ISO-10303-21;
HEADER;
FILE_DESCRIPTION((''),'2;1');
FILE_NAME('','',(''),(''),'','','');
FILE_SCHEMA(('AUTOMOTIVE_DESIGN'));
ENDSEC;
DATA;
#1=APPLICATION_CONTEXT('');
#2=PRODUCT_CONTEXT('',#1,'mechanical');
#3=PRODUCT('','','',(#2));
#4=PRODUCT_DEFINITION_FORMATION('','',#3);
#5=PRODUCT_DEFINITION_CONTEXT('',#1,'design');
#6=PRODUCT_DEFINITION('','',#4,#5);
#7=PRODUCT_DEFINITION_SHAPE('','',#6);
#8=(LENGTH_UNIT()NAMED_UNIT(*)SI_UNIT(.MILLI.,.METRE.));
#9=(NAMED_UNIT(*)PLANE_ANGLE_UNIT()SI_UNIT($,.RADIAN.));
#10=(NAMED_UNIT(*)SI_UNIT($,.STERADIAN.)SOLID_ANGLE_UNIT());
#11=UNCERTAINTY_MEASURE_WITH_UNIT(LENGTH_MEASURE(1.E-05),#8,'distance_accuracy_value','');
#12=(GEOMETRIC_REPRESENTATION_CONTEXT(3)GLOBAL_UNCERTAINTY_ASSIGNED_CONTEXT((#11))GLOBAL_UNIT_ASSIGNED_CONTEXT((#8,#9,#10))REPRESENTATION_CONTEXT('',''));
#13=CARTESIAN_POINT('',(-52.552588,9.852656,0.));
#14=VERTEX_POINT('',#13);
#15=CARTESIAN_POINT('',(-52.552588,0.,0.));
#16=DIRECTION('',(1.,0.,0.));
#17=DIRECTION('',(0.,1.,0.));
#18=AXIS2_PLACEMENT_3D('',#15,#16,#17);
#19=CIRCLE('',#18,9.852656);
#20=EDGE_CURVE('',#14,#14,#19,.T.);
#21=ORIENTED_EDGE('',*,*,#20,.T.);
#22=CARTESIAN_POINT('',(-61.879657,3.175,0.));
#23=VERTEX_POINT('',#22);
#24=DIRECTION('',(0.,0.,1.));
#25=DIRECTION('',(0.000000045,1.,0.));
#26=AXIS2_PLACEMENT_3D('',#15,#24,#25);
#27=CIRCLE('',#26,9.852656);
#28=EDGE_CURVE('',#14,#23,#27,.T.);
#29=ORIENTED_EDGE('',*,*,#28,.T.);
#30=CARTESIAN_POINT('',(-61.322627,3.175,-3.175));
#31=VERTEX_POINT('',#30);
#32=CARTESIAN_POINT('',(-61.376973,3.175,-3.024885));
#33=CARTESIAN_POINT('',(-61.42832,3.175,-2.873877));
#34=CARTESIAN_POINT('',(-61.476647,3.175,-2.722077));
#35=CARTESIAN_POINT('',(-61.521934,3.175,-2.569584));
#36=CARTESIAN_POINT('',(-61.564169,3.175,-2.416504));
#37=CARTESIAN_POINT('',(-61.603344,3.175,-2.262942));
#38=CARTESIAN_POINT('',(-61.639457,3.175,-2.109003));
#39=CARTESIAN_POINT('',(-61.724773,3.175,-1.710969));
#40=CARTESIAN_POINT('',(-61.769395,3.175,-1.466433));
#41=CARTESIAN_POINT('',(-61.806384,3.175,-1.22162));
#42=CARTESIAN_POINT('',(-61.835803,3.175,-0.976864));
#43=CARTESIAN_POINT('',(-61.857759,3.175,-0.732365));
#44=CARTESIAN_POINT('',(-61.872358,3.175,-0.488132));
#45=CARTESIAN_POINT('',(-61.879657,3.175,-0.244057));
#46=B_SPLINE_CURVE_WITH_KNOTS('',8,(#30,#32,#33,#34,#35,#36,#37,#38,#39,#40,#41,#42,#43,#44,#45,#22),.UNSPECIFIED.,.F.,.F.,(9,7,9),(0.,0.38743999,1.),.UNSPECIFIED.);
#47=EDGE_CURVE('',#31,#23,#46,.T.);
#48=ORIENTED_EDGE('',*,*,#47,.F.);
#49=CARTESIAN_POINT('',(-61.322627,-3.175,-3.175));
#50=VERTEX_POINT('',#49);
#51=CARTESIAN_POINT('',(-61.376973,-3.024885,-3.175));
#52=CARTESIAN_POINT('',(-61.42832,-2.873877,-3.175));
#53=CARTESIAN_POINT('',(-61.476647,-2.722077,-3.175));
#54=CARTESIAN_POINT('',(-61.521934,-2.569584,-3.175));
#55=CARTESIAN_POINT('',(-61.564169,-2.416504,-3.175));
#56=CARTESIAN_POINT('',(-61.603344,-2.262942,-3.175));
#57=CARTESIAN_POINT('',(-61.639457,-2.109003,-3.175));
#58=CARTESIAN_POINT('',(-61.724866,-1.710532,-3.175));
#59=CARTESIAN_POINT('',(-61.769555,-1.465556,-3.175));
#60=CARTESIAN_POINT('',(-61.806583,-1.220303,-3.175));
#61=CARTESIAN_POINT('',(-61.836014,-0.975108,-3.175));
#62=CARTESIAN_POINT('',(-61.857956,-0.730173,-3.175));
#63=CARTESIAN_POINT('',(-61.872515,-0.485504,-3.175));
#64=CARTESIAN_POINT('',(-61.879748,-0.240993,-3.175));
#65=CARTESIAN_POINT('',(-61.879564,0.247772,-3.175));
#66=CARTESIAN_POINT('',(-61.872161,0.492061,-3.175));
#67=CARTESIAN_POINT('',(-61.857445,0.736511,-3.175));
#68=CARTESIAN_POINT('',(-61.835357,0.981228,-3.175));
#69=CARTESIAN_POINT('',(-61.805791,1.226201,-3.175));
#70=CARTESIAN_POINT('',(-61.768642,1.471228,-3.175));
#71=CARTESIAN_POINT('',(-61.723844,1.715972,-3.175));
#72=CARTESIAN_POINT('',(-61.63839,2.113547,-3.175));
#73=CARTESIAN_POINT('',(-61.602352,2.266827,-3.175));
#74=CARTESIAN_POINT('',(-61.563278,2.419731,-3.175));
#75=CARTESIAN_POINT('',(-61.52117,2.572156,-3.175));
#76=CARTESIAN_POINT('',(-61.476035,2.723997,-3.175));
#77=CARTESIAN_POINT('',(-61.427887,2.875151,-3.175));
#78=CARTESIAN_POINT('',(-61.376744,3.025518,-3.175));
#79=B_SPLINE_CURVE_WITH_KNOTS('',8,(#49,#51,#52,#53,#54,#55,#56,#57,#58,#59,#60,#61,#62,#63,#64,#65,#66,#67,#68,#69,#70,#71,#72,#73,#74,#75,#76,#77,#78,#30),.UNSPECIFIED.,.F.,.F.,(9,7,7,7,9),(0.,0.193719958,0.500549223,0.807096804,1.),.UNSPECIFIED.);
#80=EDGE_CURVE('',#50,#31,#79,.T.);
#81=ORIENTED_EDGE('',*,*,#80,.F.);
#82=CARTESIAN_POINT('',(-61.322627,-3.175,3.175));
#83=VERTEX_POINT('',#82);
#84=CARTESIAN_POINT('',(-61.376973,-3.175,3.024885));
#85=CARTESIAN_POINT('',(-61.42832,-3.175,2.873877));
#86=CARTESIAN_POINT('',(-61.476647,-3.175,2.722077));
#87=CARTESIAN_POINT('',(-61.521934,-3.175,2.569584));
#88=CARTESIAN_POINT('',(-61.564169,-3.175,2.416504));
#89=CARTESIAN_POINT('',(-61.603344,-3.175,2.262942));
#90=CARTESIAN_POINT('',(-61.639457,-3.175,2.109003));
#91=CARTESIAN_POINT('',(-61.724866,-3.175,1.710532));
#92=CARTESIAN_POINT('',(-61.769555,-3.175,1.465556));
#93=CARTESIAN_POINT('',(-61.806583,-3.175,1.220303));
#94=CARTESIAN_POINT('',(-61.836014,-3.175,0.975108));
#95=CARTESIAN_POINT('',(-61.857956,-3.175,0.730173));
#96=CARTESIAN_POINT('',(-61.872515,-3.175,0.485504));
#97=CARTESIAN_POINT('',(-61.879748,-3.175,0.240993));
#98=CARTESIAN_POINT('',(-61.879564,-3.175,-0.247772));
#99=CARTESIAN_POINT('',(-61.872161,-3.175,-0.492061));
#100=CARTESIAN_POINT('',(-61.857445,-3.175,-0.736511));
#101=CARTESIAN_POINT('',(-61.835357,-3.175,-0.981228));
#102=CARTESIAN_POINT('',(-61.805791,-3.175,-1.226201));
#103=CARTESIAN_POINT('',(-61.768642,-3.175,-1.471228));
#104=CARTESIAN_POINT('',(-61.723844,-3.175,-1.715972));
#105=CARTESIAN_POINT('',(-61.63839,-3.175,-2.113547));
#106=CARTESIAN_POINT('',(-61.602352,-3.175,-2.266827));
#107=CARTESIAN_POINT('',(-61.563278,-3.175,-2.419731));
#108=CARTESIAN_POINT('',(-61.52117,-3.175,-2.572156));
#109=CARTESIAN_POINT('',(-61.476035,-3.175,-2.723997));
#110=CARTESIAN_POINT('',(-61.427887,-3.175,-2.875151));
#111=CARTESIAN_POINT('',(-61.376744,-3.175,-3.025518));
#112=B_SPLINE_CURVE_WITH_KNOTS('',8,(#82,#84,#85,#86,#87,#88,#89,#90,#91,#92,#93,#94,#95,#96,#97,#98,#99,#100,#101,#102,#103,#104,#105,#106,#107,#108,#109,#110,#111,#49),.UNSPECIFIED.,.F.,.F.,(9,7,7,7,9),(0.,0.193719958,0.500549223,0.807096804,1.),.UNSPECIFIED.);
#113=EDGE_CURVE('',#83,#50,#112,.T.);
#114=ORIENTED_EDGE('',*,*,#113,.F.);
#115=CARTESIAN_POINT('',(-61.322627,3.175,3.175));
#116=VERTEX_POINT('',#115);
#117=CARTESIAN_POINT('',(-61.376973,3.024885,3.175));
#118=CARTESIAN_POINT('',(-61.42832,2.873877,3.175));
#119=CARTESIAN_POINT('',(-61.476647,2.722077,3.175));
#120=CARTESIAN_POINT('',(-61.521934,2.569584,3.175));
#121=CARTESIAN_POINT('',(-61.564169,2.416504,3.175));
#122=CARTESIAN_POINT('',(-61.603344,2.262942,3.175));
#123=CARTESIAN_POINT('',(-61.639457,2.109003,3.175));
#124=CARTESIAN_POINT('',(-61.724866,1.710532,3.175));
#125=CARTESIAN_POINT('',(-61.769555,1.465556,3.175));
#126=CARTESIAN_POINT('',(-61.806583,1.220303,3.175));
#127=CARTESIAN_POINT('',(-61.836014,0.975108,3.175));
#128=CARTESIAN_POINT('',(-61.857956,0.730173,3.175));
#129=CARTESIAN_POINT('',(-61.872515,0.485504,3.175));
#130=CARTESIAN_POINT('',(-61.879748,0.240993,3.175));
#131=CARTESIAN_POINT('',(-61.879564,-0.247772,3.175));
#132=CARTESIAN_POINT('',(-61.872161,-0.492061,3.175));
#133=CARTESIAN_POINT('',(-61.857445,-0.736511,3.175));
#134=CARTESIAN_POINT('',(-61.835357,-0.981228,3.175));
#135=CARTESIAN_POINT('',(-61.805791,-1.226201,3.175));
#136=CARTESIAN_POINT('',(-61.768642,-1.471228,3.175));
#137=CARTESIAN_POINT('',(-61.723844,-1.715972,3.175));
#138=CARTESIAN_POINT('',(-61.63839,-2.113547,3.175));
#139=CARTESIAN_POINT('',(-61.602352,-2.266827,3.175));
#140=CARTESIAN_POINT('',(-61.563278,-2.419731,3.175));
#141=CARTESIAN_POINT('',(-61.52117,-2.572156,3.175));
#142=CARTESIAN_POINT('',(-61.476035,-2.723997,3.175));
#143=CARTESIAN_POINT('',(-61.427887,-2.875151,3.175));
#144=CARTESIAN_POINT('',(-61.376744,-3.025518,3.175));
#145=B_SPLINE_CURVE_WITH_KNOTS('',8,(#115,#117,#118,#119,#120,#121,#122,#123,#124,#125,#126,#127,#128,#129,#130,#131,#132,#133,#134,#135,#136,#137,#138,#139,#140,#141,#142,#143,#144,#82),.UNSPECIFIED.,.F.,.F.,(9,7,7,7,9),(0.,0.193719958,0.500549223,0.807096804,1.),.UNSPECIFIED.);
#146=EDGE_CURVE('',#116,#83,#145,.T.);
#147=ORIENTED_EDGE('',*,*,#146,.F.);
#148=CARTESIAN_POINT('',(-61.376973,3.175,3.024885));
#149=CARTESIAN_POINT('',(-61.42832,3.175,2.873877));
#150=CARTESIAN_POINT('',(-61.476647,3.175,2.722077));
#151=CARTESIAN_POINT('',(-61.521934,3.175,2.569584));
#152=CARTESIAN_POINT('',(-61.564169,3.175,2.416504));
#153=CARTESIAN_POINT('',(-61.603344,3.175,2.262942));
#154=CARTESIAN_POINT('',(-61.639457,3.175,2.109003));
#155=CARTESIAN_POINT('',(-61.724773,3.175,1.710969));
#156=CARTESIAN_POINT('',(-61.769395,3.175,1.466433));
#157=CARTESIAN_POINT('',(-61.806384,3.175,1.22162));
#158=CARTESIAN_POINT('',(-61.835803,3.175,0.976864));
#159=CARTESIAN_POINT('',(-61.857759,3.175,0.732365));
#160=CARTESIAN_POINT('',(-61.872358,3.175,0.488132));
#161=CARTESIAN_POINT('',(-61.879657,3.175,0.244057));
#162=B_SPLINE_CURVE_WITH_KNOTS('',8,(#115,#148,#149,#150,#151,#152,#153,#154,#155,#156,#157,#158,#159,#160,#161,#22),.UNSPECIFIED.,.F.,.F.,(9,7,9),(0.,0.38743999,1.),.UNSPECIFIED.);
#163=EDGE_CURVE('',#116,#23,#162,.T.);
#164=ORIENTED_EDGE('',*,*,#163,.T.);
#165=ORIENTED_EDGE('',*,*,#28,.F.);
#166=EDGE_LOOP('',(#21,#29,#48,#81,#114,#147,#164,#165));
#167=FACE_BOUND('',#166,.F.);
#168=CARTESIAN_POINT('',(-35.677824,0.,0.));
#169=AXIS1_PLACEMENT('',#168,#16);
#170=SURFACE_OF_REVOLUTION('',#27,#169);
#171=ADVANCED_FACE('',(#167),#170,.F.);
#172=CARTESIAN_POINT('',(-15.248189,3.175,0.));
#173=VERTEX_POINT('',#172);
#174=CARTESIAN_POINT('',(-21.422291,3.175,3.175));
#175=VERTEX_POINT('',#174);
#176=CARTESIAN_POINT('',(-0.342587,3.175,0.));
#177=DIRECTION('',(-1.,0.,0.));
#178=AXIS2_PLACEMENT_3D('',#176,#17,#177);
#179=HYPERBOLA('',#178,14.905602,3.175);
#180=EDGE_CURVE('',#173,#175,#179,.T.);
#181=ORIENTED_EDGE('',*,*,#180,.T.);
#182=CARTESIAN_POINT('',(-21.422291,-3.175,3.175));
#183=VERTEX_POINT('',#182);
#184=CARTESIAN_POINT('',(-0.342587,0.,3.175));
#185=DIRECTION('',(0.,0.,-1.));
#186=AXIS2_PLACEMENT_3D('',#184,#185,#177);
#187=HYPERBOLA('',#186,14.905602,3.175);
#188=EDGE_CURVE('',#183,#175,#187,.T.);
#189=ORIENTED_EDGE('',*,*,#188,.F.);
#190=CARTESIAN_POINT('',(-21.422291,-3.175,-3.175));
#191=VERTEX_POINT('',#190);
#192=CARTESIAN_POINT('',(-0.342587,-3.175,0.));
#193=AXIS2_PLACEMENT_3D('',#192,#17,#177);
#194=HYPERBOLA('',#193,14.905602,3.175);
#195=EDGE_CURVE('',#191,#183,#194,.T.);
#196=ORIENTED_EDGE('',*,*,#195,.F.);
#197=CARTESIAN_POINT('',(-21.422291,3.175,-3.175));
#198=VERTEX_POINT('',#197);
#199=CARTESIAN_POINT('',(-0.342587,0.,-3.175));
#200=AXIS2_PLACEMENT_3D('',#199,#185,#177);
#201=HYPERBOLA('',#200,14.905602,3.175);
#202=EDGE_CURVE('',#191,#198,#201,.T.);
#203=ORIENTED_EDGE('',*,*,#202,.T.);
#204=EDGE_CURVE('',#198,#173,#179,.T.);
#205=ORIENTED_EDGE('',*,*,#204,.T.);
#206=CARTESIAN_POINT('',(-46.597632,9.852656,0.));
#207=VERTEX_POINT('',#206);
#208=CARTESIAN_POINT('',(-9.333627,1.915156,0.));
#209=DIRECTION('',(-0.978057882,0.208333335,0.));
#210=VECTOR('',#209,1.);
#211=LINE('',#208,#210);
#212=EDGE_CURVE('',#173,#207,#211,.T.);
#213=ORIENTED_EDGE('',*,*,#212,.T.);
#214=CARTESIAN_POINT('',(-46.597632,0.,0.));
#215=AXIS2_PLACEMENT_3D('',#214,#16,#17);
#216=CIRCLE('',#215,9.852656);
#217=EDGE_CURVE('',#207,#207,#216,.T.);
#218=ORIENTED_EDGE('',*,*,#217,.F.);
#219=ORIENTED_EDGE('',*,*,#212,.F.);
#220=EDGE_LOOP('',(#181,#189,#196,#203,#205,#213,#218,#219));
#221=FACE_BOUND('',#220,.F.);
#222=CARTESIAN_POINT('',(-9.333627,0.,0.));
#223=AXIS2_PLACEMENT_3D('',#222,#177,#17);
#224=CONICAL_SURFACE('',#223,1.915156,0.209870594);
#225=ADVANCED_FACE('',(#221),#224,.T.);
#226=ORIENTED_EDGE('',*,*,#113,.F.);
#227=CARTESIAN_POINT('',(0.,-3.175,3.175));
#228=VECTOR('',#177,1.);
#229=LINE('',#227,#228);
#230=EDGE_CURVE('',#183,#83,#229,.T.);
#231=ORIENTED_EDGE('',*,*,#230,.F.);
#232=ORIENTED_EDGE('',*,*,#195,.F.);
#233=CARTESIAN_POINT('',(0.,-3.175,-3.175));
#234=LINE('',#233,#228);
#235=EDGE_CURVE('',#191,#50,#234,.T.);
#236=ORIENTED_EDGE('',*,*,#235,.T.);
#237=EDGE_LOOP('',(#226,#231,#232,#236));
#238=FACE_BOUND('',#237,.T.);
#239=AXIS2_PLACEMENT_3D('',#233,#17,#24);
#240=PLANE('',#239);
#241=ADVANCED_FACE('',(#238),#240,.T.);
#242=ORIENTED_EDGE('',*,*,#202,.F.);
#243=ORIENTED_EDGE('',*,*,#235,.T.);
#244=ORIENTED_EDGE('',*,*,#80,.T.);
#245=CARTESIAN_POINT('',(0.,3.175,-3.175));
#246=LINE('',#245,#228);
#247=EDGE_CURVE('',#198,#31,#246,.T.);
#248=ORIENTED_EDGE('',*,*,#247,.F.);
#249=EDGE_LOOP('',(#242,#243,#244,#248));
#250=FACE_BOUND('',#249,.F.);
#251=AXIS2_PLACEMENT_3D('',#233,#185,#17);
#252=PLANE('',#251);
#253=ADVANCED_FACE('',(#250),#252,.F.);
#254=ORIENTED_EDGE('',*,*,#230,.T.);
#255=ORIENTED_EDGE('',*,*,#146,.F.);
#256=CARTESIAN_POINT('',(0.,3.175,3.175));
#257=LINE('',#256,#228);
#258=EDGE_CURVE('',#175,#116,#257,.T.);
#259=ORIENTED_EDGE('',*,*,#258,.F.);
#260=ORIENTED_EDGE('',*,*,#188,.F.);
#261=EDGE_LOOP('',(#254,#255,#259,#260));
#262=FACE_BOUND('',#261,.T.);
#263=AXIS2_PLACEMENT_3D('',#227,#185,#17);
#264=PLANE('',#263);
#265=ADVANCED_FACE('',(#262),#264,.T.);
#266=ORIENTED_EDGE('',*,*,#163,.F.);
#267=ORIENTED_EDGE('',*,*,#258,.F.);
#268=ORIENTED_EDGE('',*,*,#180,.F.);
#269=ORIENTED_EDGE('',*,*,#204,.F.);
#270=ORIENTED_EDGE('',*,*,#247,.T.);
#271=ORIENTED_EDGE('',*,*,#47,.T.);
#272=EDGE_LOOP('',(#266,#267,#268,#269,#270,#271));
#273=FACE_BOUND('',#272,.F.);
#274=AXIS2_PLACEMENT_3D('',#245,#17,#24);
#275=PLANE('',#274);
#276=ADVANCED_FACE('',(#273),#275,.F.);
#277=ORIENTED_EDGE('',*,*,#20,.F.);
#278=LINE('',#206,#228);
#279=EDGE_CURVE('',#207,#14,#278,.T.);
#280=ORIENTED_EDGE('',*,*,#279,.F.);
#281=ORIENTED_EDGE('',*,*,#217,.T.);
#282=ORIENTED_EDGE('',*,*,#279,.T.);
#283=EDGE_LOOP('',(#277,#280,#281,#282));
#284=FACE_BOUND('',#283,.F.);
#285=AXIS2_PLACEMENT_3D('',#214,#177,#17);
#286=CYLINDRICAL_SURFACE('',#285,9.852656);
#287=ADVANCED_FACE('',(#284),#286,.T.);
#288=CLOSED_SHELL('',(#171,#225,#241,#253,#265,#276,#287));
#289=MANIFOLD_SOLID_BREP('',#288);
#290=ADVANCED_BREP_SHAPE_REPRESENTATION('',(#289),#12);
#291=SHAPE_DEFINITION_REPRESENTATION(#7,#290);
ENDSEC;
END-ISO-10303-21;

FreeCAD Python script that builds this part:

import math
import FreeCAD as App
import Part
import Sketcher
Q = App.Units.Quantity


def add_polygon(sketch, points):
    """Adds a closed chain of lines whose ends are joined by coincident constraints."""
    first, n = sketch.GeometryCount, len(points)
    for a, b in zip(points, points[1:] + points[:1]):
        sketch.addGeometry(Part.LineSegment(App.Vector(*a, 0), App.Vector(*b, 0)), False)
    for i in range(n):
        sketch.addConstraint(Sketcher.Constraint("Coincident", first + i, 2, first + (i + 1) % n, 1))

doc = App.newDocument("Part")
params = doc.addObject("Spreadsheet::Sheet", "Params")
for row, (alias, value) in enumerate([
    ("sketch1_length", "1.5 in"),
    ("revolution_angle", "360 deg"),
    ("sketch2_width", "0.25 in"),
], start=1):
    params.set(f"A{row}", alias)
    params.set(f"B{row}", "=" + value)
    params.setAlias(f"B{row}", alias)

body = doc.addObject("PartDesign::Body", "Body")

# Sketch on XY plane
sketch1 = doc.addObject("Sketcher::SketchObject", "Sketch")
body.addObject(sketch1)
sketch1.AttachmentSupport = (doc.XY_Plane, [""])
sketch1.MapMode = "FlatFace"
sketch1.addGeometry([
    Part.LineSegment(App.Vector(-9.3, 1.9, 0), App.Vector(-46.6, 9.9, 0)),  # 0
    Part.LineSegment(App.Vector(-46.6, 9.9, 0), App.Vector(-52.6, 9.9, 0)),  # 1
    Part.ArcOfCircle(Part.Circle(App.Vector(-52.6, 0, 0), App.Vector(0, 0, 1), 9.9), math.radians(90), math.radians(180)),  # 2
    Part.LineSegment(App.Vector(-62.4, 0, 0), App.Vector(-7.8, 0, 0)),  # 3
    Part.ArcOfCircle(Part.Circle(App.Vector(-9.7, 0, 0), App.Vector(0, 0, 1), 2), math.radians(1), math.radians(78)),  # 4
], False)
sketch1.addConstraint([
    Sketcher.Constraint("Coincident", 0, 2, 1, 1),
    Sketcher.Constraint("Tangent", 1, 2, 2, 1),
    Sketcher.Constraint("Coincident", 2, 2, 3, 1),
    Sketcher.Constraint("Coincident", 3, 2, 4, 1),
    Sketcher.Constraint("Tangent", 4, 2, 0, 1),
    Sketcher.Constraint("Horizontal", 1),
    Sketcher.Constraint("Horizontal", 3),
    Sketcher.Constraint("PointOnObject", 2, 3, -1),
    Sketcher.Constraint("PointOnObject", 2, 2, -1),
    Sketcher.Constraint("Distance", 0, Q("1.5 in")),
    Sketcher.Constraint("Radius", 2, Q("0.3878998 in")),
    Sketcher.Constraint("DistanceY", 4, 2, 0, 2, Q("0.3125 in")),
    Sketcher.Constraint("Radius", 4, 1.984984),
    Sketcher.Constraint("DistanceX", 3, 1, 3, 2, 54.64289),
    Sketcher.Constraint("DistanceX", 2, 3, -1, 1, 52.552588),
])
sketch1.setExpression("Constraints[9]", "Params.sketch1_length")
revolution = doc.addObject("PartDesign::Revolution", "Revolution")
body.addObject(revolution)
revolution.Profile = sketch1
revolution.ReferenceAxis = (sketch1, ["H_Axis"])
revolution.setExpression("Angle", "Params.revolution_angle")

# Sketch on YZ plane
sketch2 = doc.addObject("Sketcher::SketchObject", "Sketch001")
body.addObject(sketch2)
sketch2.AttachmentSupport = (doc.YZ_Plane, [""])
sketch2.MapMode = "FlatFace"
add_polygon(sketch2, [(-3, 3), (-3, -3), (3, -3), (3, 3)])  # lines 0-3
sketch2.addConstraint([
    Sketcher.Constraint("Vertical", 0),
    Sketcher.Constraint("Horizontal", 1),
    Sketcher.Constraint("Vertical", 2),
    Sketcher.Constraint("Horizontal", 3),
    Sketcher.Constraint("Symmetric", 0, 2, 2, 2, -1, 1),
    Sketcher.Constraint("Equal", 3, 0),
    Sketcher.Constraint("DistanceX", 1, 1, 1, 2, Q("0.25 in")),
])
sketch2.setExpression("Constraints[10]", "Params.sketch2_width")
pocket1 = doc.addObject("PartDesign::Pocket", "Pocket")
body.addObject(pocket1)
pocket1.Profile = sketch2
pocket1.Type = "ThroughAll"

doc.recompute()
